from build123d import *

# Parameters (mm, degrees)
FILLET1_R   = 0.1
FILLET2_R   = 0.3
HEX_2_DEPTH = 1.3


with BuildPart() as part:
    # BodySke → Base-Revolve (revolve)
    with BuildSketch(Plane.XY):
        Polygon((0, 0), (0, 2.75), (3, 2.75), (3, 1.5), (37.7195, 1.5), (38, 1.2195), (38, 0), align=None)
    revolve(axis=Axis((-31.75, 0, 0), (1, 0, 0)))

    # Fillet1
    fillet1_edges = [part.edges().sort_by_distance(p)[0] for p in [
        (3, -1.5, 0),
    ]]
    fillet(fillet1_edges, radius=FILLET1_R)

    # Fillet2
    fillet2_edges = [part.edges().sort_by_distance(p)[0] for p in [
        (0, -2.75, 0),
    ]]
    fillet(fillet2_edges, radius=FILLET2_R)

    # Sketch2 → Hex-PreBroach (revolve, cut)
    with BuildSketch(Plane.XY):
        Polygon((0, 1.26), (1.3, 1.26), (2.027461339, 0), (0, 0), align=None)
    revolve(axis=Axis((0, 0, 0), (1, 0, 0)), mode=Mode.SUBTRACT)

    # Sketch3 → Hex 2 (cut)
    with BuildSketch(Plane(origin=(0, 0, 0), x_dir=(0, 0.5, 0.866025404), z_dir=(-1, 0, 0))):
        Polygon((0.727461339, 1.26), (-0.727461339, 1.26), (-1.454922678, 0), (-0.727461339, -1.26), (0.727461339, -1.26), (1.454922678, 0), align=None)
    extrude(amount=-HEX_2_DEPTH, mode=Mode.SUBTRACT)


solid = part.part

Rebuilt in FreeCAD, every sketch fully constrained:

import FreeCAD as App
import Part
import Sketcher
Q = App.Units.Quantity


def edges_at(feature, points):
    """Names of the edges that pass closest to the given points."""
    edges = feature.Shape.Edges
    near = lambda p: min(range(len(edges)), key=lambda i: edges[i].distToShape(Part.Vertex(*p))[0])
    return sorted({f"Edge{near(p) + 1}" for p in points})


def add_polygon(sketch, points):
    """Adds a closed chain of lines whose ends are joined by coincident constraints."""
    first, n = sketch.GeometryCount, len(points)
    for a, b in zip(points, points[1:] + points[:1]):
        sketch.addGeometry(Part.LineSegment(App.Vector(*a, 0), App.Vector(*b, 0)), False)
    for i in range(n):
        sketch.addConstraint(Sketcher.Constraint("Coincident", first + i, 2, first + (i + 1) % n, 1))

doc = App.newDocument("Part")
params = doc.addObject("Spreadsheet::Sheet", "Params")
for row, (alias, value) in enumerate([
    ("sketch1_width", "38 mm"),
    ("sketch1_width2", "3 mm"),
    ("sketch1_height", "2.75 mm"),
    ("sketch1_height2", "1.25 mm"),
    ("revolution_angle", "360 deg"),
    ("fillet_radius", "0.1 mm"),
    ("fillet2_radius", "0.3 mm"),
    ("sketch2_width", "1.3 mm"),
    ("sketch2_height", "1.26 mm"),
    ("groove_angle", "360 deg"),
    ("pocket1_length", "1.3 mm"),
], start=1):
    params.set(f"A{row}", alias)
    params.set(f"B{row}", "=" + value)
    params.setAlias(f"B{row}", alias)

body = doc.addObject("PartDesign::Body", "Body")

# Sketch on XY plane
sketch1 = body.newObject("Sketcher::SketchObject", "Sketch")
sketch1.AttachmentSupport = (doc.getObject("XY_Plane"), [""])
sketch1.MapMode = "FlatFace"
add_polygon(sketch1, [(0, 2.75), (0, 0), (38, 0), (38, 1.22), (37.72, 1.5), (3, 1.5), (3, 2.75)])  # lines 0-6
sketch1.addConstraint(Sketcher.Constraint("Vertical", 0))
sketch1.addConstraint(Sketcher.Constraint("Horizontal", 1))
sketch1.addConstraint(Sketcher.Constraint("Vertical", 2))
sketch1.addConstraint(Sketcher.Constraint("Horizontal", 4))
sketch1.addConstraint(Sketcher.Constraint("Vertical", 5))
sketch1.addConstraint(Sketcher.Constraint("Horizontal", 6))
sketch1.addConstraint(Sketcher.Constraint("Coincident", 0, 2, -1, 1))
sketch1.addConstraint(Sketcher.Constraint("DistanceX", 1, 1, 1, 2, Q("38 mm")))
sketch1.addConstraint(Sketcher.Constraint("DistanceX", 6, 2, 6, 1, Q("3 mm")))
sketch1.addConstraint(Sketcher.Constraint("Angle", 3, Q("135 deg")))
sketch1.addConstraint(Sketcher.Constraint("DistanceY", 0, 2, 0, 1, Q("2.75 mm")))
sketch1.addConstraint(Sketcher.Constraint("DistanceY", 5, 1, 5, 2, Q("1.25 mm")))
sketch1.addConstraint(Sketcher.Constraint("DistanceX", 4, 2, 4, 1, Q("34.7195 mm")))
sketch1.setExpression("Constraints[14]", "Params.sketch1_width")
sketch1.setExpression("Constraints[15]", "Params.sketch1_width2")
sketch1.setExpression("Constraints[17]", "Params.sketch1_height")
sketch1.setExpression("Constraints[18]", "Params.sketch1_height2")
revolution = body.newObject("PartDesign::Revolution", "Revolution")
revolution.Profile = sketch1
revolution.ReferenceAxis = (sketch1, ["H_Axis"])
revolution.setExpression("Angle", "Params.revolution_angle")
doc.recompute()

fillet = body.newObject("PartDesign::Fillet", "Fillet")
fillet.Base = (revolution, edges_at(revolution, [(3, -1.5, 0)]))
fillet.setExpression("Radius", "Params.fillet_radius")
doc.recompute()

fillet2 = body.newObject("PartDesign::Fillet", "Fillet001")
fillet2.Base = (fillet, edges_at(fillet, [(0, -2.75, 0)]))
fillet2.setExpression("Radius", "Params.fillet2_radius")

# Sketch on XY plane
sketch2 = body.newObject("Sketcher::SketchObject", "Sketch001")
sketch2.AttachmentSupport = (doc.getObject("XY_Plane"), [""])
sketch2.MapMode = "FlatFace"
add_polygon(sketch2, [(1.3, 1.3), (0, 1.3), (0, 0), (2, 0)])  # lines 0-3
sketch2.addConstraint(Sketcher.Constraint("Horizontal", 0))
sketch2.addConstraint(Sketcher.Constraint("Vertical", 1))
sketch2.addConstraint(Sketcher.Constraint("Horizontal", 2))
sketch2.addConstraint(Sketcher.Constraint("Coincident", 1, 2, -1, 1))
sketch2.addConstraint(Sketcher.Constraint("Angle", 3, Q("120 deg")))
sketch2.addConstraint(Sketcher.Constraint("DistanceX", 0, 2, 0, 1, Q("1.3 mm")))
sketch2.addConstraint(Sketcher.Constraint("DistanceY", 1, 2, 1, 1, Q("1.26 mm")))
sketch2.setExpression("Constraints[9]", "Params.sketch2_width")
sketch2.setExpression("Constraints[10]", "Params.sketch2_height")
groove = body.newObject("PartDesign::Groove", "Groove")
groove.Profile = sketch2
groove.ReferenceAxis = (sketch2, ["H_Axis"])
groove.setExpression("Angle", "Params.groove_angle")

# Sketch on YZ plane
sketch3 = body.newObject("Sketcher::SketchObject", "Sketch002")
sketch3.AttachmentSupport = (doc.getObject("YZ_Plane"), [""])
sketch3.MapMode = "FlatFace"
add_polygon(sketch3, [(1.5, 0), (0.7, -1.3), (-0.7, -1.3), (-1.5, 0), (-0.7, 1.3), (0.7, 1.3)])  # lines 0-5
sketch3.addConstraint(Sketcher.Constraint("Horizontal", 1))
sketch3.addConstraint(Sketcher.Constraint("Horizontal", 4))
sketch3.addConstraint(Sketcher.Constraint("Symmetric", 0, 2, 3, 2, -1, 1))
sketch3.addConstraint(Sketcher.Constraint("Symmetric", 2, 2, 5, 2, -1, 1))
sketch3.addConstraint(Sketcher.Constraint("PointOnObject", 2, 2, -1))
sketch3.addConstraint(Sketcher.Constraint("Parallel", 2, 5))
sketch3.addConstraint(Sketcher.Constraint("Vertical", 1, 2, 3, 2))
sketch3.addConstraint(Sketcher.Constraint("Angle", 0, Q("-120 deg")))
sketch3.addConstraint(Sketcher.Constraint("DistanceY", 0, 2, -1, 1, Q("1.26 mm")))
sketch3.addConstraint(Sketcher.Constraint("DistanceX", 1, 2, 1, 1, Q("1.454923 mm")))
pocket1 = body.newObject("PartDesign::Pocket", "Pocket")
pocket1.Profile = sketch3
pocket1.setExpression("Length", "Params.pocket1_length")
pocket1.Reversed = True

doc.recompute()
